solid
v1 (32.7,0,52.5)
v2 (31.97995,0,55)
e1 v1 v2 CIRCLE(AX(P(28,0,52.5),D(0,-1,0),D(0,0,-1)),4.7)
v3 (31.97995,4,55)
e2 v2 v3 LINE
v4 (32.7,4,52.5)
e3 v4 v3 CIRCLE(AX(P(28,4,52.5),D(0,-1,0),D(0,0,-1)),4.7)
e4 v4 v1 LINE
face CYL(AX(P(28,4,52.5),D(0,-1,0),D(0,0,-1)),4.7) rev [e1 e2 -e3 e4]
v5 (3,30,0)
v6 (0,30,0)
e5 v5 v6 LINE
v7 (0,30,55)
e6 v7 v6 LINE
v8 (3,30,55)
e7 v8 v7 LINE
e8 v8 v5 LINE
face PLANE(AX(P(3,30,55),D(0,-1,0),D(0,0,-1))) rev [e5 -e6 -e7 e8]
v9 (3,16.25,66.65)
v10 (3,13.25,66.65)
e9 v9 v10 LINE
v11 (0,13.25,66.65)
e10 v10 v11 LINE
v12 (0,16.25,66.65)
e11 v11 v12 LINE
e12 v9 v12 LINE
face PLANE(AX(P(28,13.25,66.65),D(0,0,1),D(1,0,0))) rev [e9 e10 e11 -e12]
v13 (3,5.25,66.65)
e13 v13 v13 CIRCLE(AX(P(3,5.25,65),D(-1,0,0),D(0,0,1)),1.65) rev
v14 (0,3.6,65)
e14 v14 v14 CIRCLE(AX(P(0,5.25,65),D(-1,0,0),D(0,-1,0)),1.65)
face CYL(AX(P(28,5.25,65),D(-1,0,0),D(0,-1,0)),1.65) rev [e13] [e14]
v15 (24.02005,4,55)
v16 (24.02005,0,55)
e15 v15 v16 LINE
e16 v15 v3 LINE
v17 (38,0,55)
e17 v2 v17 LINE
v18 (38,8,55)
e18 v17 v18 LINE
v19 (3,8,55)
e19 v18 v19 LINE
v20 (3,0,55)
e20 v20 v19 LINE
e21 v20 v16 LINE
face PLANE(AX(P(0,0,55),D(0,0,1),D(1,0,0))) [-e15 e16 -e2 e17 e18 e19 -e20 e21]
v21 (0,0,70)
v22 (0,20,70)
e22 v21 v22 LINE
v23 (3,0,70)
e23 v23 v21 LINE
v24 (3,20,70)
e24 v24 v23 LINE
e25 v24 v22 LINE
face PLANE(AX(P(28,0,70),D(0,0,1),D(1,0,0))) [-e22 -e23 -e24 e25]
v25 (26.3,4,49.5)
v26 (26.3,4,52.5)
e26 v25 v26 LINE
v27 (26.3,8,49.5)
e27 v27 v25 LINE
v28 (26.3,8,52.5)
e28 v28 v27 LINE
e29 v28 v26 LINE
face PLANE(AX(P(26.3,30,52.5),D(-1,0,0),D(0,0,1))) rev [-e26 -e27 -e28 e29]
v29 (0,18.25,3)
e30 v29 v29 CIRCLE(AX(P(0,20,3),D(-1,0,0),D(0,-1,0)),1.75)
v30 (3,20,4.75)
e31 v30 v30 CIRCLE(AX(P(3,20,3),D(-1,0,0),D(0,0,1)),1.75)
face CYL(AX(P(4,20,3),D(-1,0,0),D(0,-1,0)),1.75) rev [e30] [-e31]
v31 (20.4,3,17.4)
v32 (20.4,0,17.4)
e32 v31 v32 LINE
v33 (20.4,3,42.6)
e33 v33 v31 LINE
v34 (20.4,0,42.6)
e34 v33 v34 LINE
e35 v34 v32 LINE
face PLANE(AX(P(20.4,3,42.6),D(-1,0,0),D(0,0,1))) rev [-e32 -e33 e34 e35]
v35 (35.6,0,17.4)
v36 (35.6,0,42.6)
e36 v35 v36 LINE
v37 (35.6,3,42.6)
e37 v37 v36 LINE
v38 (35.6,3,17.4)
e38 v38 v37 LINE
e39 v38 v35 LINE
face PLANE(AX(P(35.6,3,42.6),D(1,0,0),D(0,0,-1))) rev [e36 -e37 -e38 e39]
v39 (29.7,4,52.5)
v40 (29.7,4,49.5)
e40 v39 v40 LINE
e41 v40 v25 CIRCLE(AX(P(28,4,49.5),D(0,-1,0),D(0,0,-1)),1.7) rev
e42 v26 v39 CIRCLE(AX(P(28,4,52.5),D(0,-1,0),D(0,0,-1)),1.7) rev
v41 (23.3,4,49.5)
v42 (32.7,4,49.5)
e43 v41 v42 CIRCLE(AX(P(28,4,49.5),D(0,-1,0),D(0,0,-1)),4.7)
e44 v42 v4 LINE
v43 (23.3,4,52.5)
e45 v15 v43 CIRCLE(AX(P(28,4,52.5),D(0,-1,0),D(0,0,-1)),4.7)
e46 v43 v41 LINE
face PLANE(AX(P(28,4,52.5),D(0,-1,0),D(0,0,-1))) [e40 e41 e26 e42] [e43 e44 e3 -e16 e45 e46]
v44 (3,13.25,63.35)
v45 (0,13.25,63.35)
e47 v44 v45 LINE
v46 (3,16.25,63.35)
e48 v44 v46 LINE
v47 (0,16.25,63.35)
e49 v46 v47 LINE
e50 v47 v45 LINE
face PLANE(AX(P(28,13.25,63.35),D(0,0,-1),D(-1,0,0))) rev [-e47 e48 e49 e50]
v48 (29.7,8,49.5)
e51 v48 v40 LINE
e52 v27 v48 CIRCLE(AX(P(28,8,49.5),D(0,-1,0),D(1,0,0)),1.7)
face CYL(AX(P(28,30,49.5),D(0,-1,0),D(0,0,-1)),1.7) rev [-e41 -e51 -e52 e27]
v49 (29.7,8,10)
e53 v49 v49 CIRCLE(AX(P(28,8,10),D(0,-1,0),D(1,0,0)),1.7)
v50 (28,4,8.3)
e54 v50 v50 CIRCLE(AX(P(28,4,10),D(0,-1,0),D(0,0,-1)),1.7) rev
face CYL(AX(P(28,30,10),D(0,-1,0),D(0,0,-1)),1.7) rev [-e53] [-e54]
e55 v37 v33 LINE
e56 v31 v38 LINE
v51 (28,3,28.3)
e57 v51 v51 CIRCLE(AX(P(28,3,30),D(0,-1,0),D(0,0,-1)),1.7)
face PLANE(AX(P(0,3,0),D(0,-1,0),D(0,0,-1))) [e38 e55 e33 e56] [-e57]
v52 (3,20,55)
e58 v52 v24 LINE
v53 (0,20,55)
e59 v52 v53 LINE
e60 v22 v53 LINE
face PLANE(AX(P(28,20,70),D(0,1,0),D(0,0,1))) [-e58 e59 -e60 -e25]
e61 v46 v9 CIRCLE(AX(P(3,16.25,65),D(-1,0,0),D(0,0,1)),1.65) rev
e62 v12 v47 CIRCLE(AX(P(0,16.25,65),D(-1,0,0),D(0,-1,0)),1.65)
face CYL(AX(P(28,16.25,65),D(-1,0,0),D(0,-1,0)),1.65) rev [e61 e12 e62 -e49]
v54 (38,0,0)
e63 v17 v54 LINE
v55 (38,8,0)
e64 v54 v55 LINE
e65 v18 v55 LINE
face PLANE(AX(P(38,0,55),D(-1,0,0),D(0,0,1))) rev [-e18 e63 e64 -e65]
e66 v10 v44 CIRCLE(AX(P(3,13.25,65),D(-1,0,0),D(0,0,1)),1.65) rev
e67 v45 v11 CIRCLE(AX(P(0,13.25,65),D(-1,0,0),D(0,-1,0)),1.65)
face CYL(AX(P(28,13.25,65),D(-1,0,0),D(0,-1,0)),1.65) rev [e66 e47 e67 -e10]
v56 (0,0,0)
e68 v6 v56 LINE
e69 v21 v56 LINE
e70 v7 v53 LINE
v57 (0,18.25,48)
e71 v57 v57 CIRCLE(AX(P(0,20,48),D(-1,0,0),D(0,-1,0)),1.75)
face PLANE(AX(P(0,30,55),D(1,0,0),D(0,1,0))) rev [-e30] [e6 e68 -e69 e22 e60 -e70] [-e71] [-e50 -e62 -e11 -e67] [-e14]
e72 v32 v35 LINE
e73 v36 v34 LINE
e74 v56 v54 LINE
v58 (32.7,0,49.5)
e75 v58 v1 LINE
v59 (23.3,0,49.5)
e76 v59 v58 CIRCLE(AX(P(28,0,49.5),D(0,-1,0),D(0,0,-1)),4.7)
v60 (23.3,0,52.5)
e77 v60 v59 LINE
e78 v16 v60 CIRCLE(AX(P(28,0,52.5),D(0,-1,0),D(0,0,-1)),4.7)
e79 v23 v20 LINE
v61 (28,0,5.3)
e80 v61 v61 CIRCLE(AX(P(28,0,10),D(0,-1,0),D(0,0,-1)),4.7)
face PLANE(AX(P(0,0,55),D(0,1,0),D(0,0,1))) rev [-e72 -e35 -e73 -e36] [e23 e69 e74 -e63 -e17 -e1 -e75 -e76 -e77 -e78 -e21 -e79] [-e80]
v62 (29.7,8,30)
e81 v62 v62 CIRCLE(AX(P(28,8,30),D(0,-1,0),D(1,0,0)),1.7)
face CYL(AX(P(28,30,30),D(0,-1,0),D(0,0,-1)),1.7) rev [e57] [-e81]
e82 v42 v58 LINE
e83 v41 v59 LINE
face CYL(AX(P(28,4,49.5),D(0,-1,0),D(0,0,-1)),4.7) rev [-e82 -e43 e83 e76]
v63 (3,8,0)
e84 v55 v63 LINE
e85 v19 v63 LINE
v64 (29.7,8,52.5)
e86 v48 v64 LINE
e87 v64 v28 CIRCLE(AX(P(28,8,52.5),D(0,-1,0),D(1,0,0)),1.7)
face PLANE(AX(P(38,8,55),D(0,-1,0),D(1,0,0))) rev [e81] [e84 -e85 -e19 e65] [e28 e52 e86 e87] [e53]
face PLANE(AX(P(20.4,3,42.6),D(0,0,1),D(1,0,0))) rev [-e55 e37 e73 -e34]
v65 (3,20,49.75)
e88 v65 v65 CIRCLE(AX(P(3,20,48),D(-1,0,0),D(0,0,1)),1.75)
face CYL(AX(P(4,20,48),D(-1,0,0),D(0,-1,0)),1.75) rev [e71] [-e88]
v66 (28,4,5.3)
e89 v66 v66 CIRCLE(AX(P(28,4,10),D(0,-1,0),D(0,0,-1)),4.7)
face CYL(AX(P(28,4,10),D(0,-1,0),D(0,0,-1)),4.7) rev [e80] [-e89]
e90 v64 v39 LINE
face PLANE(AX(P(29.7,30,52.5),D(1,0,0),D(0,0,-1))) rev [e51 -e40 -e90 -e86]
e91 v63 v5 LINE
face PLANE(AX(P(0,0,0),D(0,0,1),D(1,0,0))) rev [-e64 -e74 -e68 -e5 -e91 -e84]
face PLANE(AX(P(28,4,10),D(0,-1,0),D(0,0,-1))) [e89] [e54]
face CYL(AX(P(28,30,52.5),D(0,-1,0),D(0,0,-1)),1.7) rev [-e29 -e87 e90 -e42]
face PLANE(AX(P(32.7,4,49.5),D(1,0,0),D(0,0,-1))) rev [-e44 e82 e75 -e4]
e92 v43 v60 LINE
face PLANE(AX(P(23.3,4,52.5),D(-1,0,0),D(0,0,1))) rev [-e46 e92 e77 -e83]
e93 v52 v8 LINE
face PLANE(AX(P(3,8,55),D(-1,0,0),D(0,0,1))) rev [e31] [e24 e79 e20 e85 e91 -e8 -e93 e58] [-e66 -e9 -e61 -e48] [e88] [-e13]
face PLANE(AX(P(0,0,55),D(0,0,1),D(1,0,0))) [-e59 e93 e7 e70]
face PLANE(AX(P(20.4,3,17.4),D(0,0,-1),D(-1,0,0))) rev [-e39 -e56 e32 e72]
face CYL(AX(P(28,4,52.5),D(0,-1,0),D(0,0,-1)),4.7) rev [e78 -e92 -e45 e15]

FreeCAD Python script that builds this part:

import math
import FreeCAD as App
import Part
import Sketcher

doc = App.newDocument("Part")
body = doc.addObject("PartDesign::Body", "Body")

sketch1 = doc.addObject("Sketcher::SketchObject", "Sketch")
body.addObject(sketch1)
sketch1.AttachmentSupport = (doc.XY_Plane, [""])
sketch1.MapMode = "FlatFace"
sketch1.addGeometry(Part.LineSegment(App.Vector(0, 0, 0), App.Vector(38, 0, 0)), False)
sketch1.addGeometry(Part.LineSegment(App.Vector(38, 0, 0), App.Vector(38, 8, 0)), False)
sketch1.addGeometry(Part.LineSegment(App.Vector(38, 8, 0), App.Vector(3, 8, 0)), False)
sketch1.addGeometry(Part.LineSegment(App.Vector(3, 8, 0), App.Vector(3, 30, 0)), False)
sketch1.addGeometry(Part.LineSegment(App.Vector(3, 30, 0), App.Vector(0, 30, 0)), False)
sketch1.addGeometry(Part.LineSegment(App.Vector(0, 30, 0), App.Vector(0, 0, 0)), False)
sketch1.addConstraint(Sketcher.Constraint("Coincident", 0, 2, 1, 1))
sketch1.addConstraint(Sketcher.Constraint("Coincident", 1, 2, 2, 1))
sketch1.addConstraint(Sketcher.Constraint("Coincident", 2, 2, 3, 1))
sketch1.addConstraint(Sketcher.Constraint("Coincident", 3, 2, 4, 1))
sketch1.addConstraint(Sketcher.Constraint("Coincident", 4, 2, 5, 1))
sketch1.addConstraint(Sketcher.Constraint("Coincident", 5, 2, 0, 1))
sketch1.addConstraint(Sketcher.Constraint("Horizontal", 0))
sketch1.addConstraint(Sketcher.Constraint("Vertical", 1))
sketch1.addConstraint(Sketcher.Constraint("Horizontal", 2))
sketch1.addConstraint(Sketcher.Constraint("Vertical", 3))
sketch1.addConstraint(Sketcher.Constraint("Horizontal", 4))
sketch1.addConstraint(Sketcher.Constraint("Vertical", 5))
sketch1.addConstraint(Sketcher.Constraint("Coincident", 5, 2, -1, 1))
sketch1.addConstraint(Sketcher.Constraint("DistanceX", 0, 1, 0, 2, 38.0))
sketch1.addConstraint(Sketcher.Constraint("DistanceX", 2, 2, 2, 1, 35.0))
sketch1.addConstraint(Sketcher.Constraint("DistanceY", 1, 1, 1, 2, 8.0))
sketch1.addConstraint(Sketcher.Constraint("DistanceY", 3, 1, 3, 2, 22.0))
pad1 = doc.addObject("PartDesign::Pad", "Pad")
body.addObject(pad1)
pad1.Profile = sketch1
pad1.Length = 55

sketch2 = doc.addObject("Sketcher::SketchObject", "Sketch001")
body.addObject(sketch2)
sketch2.AttachmentSupport = (doc.XZ_Plane, [""])
sketch2.MapMode = "FlatFace"
sketch2.addGeometry(Part.LineSegment(App.Vector(20.4, 42.6, 0), App.Vector(20.4, 17.4, 0)), False)
sketch2.addGeometry(Part.LineSegment(App.Vector(20.4, 17.4, 0), App.Vector(35.6, 17.4, 0)), False)
sketch2.addGeometry(Part.LineSegment(App.Vector(35.6, 17.4, 0), App.Vector(35.6, 42.6, 0)), False)
sketch2.addGeometry(Part.LineSegment(App.Vector(35.6, 42.6, 0), App.Vector(20.4, 42.6, 0)), False)
sketch2.addConstraint(Sketcher.Constraint("Coincident", 0, 2, 1, 1))
sketch2.addConstraint(Sketcher.Constraint("Coincident", 1, 2, 2, 1))
sketch2.addConstraint(Sketcher.Constraint("Coincident", 2, 2, 3, 1))
sketch2.addConstraint(Sketcher.Constraint("Coincident", 3, 2, 0, 1))
sketch2.addConstraint(Sketcher.Constraint("Vertical", 0))
sketch2.addConstraint(Sketcher.Constraint("Horizontal", 1))
sketch2.addConstraint(Sketcher.Constraint("Vertical", 2))
sketch2.addConstraint(Sketcher.Constraint("Horizontal", 3))
sketch2.addConstraint(Sketcher.Constraint("DistanceX", 1, 1, 1, 2, 15.2))
sketch2.addConstraint(Sketcher.Constraint("DistanceY", 0, 2, 0, 1, 25.2))
sketch2.addConstraint(Sketcher.Constraint("DistanceX", -1, 1, 0, 2, 20.4))
sketch2.addConstraint(Sketcher.Constraint("DistanceY", -1, 1, 0, 2, 17.4))
pocket1 = doc.addObject("PartDesign::Pocket", "Pocket")
body.addObject(pocket1)
pocket1.Profile = sketch2
pocket1.Length = 3

sketch3 = doc.addObject("Sketcher::SketchObject", "Sketch002")
body.addObject(sketch3)
sketch3.AttachmentSupport = (doc.XZ_Plane, [""])
sketch3.MapMode = "FlatFace"
sketch3.addGeometry(Part.Circle(App.Vector(28, 30, 0), App.Vector(0, 0, 1), 1.7), False)
sketch3.addGeometry(Part.Circle(App.Vector(28, 10, 0), App.Vector(0, 0, 1), 1.7), False)
sketch3.addGeometry(Part.LineSegment(App.Vector(29.7, 49.5, 0), App.Vector(29.7, 52.5, 0)), False)
sketch3.addGeometry(Part.ArcOfCircle(Part.Circle(App.Vector(28, 52.5, 0), App.Vector(0, 0, 1), 1.7), math.radians(0), math.radians(180)), False)
sketch3.addGeometry(Part.LineSegment(App.Vector(26.3, 52.5, 0), App.Vector(26.3, 49.5, 0)), False)
sketch3.addGeometry(Part.ArcOfCircle(Part.Circle(App.Vector(28, 49.5, 0), App.Vector(0, 0, 1), 1.7), math.radians(180), math.radians(360)), False)
sketch3.addConstraint(Sketcher.Constraint("Tangent", 2, 2, 3, 1))
sketch3.addConstraint(Sketcher.Constraint("Tangent", 3, 2, 4, 1))
sketch3.addConstraint(Sketcher.Constraint("Tangent", 4, 2, 5, 1))
sketch3.addConstraint(Sketcher.Constraint("Tangent", 5, 2, 2, 1))
sketch3.addConstraint(Sketcher.Constraint("Vertical", 2))
sketch3.addConstraint(Sketcher.Constraint("Vertical", 4))
sketch3.addConstraint(Sketcher.Constraint("Equal", 0, 1))
sketch3.addConstraint(Sketcher.Constraint("Equal", 1, 3))
sketch3.addConstraint(Sketcher.Constraint("Vertical", 0, 3, 1, 3))
sketch3.addConstraint(Sketcher.Constraint("Vertical", 1, 3, 3, 3))
sketch3.addConstraint(Sketcher.Constraint("Diameter", 0, 3.4))
sketch3.addConstraint(Sketcher.Constraint("DistanceY", 2, 1, 2, 2, 3.0))
sketch3.addConstraint(Sketcher.Constraint("DistanceX", -1, 1, 0, 3, 28.0))
sketch3.addConstraint(Sketcher.Constraint("DistanceY", -1, 1, 0, 3, 30.0))
sketch3.addConstraint(Sketcher.Constraint("DistanceY", -1, 1, 1, 3, 10.0))
sketch3.addConstraint(Sketcher.Constraint("DistanceY", -1, 1, 3, 3, 52.5))
pocket2 = doc.addObject("PartDesign::Pocket", "Pocket001")
body.addObject(pocket2)
pocket2.Profile = sketch3
pocket2.Type = "ThroughAll"

sketch4 = doc.addObject("Sketcher::SketchObject", "Sketch003")
body.addObject(sketch4)
sketch4.AttachmentSupport = (doc.XZ_Plane, [""])
sketch4.MapMode = "FlatFace"
sketch4.addGeometry(Part.Circle(App.Vector(28, 10, 0), App.Vector(0, 0, 1), 4.7), False)
sketch4.addGeometry(Part.LineSegment(App.Vector(32.7, 49.5, 0), App.Vector(32.7, 52.5, 0)), False)
sketch4.addGeometry(Part.ArcOfCircle(Part.Circle(App.Vector(28, 52.5, 0), App.Vector(0, 0, 1), 4.7), math.radians(0), math.radians(180)), False)
sketch4.addGeometry(Part.LineSegment(App.Vector(23.3, 52.5, 0), App.Vector(23.3, 49.5, 0)), False)
sketch4.addGeometry(Part.ArcOfCircle(Part.Circle(App.Vector(28, 49.5, 0), App.Vector(0, 0, 1), 4.7), math.radians(180), math.radians(360)), False)
sketch4.addConstraint(Sketcher.Constraint("Tangent", 1, 2, 2, 1))
sketch4.addConstraint(Sketcher.Constraint("Tangent", 2, 2, 3, 1))
sketch4.addConstraint(Sketcher.Constraint("Tangent", 3, 2, 4, 1))
sketch4.addConstraint(Sketcher.Constraint("Tangent", 4, 2, 1, 1))
sketch4.addConstraint(Sketcher.Constraint("Vertical", 1))
sketch4.addConstraint(Sketcher.Constraint("Vertical", 3))
sketch4.addConstraint(Sketcher.Constraint("Equal", 0, 2))
sketch4.addConstraint(Sketcher.Constraint("Vertical", 0, 3, 2, 3))
sketch4.addConstraint(Sketcher.Constraint("Diameter", 0, 9.4))
sketch4.addConstraint(Sketcher.Constraint("DistanceY", 1, 1, 1, 2, 3.0))
sketch4.addConstraint(Sketcher.Constraint("DistanceX", -1, 1, 0, 3, 28.0))
sketch4.addConstraint(Sketcher.Constraint("DistanceY", -1, 1, 0, 3, 10.0))
sketch4.addConstraint(Sketcher.Constraint("DistanceY", -1, 1, 2, 3, 52.5))
pocket3 = doc.addObject("PartDesign::Pocket", "Pocket002")
body.addObject(pocket3)
pocket3.Profile = sketch4
pocket3.Length = 4

sketch5 = doc.addObject("Sketcher::SketchObject", "Sketch004")
body.addObject(sketch5)
sketch5.AttachmentSupport = (doc.YZ_Plane, [""])
sketch5.MapMode = "FlatFace"
sketch5.addGeometry(Part.Circle(App.Vector(20, 48, 0), App.Vector(0, 0, 1), 1.75), False)
sketch5.addGeometry(Part.Circle(App.Vector(20, 3, 0), App.Vector(0, 0, 1), 1.75), False)
sketch5.addConstraint(Sketcher.Constraint("Equal", 0, 1))
sketch5.addConstraint(Sketcher.Constraint("Vertical", 0, 3, 1, 3))
sketch5.addConstraint(Sketcher.Constraint("Diameter", 0, 3.5))
sketch5.addConstraint(Sketcher.Constraint("DistanceX", -1, 1, 0, 3, 20.0))
sketch5.addConstraint(Sketcher.Constraint("DistanceY", -1, 1, 0, 3, 48.0))
sketch5.addConstraint(Sketcher.Constraint("DistanceY", -1, 1, 1, 3, 3.0))
pocket4 = doc.addObject("PartDesign::Pocket", "Pocket003")
body.addObject(pocket4)
pocket4.Profile = sketch5
pocket4.Length = 4
pocket4.Reversed = True

sketch6 = doc.addObject("Sketcher::SketchObject", "Sketch005")
body.addObject(sketch6)
sketch6.AttachmentSupport = (doc.YZ_Plane, [""])
sketch6.MapMode = "FlatFace"
sketch6.addGeometry(Part.LineSegment(App.Vector(20, 55, 0), App.Vector(0, 55, 0)), False)
sketch6.addGeometry(Part.LineSegment(App.Vector(0, 55, 0), App.Vector(0, 70, 0)), False)
sketch6.addGeometry(Part.LineSegment(App.Vector(0, 70, 0), App.Vector(20, 70, 0)), False)
sketch6.addGeometry(Part.LineSegment(App.Vector(20, 70, 0), App.Vector(20, 55, 0)), False)
sketch6.addGeometry(Part.Circle(App.Vector(5.25, 65, 0), App.Vector(0, 0, 1), 1.65), False)
sketch6.addGeometry(Part.ArcOfCircle(Part.Circle(App.Vector(13.25, 65, 0), App.Vector(0, 0, 1), 1.65), math.radians(90), math.radians(270)), False)
sketch6.addGeometry(Part.LineSegment(App.Vector(13.25, 63.35, 0), App.Vector(16.25, 63.35, 0)), False)
sketch6.addGeometry(Part.ArcOfCircle(Part.Circle(App.Vector(16.25, 65, 0), App.Vector(0, 0, 1), 1.65), math.radians(-90), math.radians(90)), False)
sketch6.addGeometry(Part.LineSegment(App.Vector(16.25, 66.65, 0), App.Vector(13.25, 66.65, 0)), False)
sketch6.addConstraint(Sketcher.Constraint("Coincident", 0, 2, 1, 1))
sketch6.addConstraint(Sketcher.Constraint("Coincident", 1, 2, 2, 1))
sketch6.addConstraint(Sketcher.Constraint("Coincident", 2, 2, 3, 1))
sketch6.addConstraint(Sketcher.Constraint("Coincident", 3, 2, 0, 1))
sketch6.addConstraint(Sketcher.Constraint("Tangent", 5, 2, 6, 1))
sketch6.addConstraint(Sketcher.Constraint("Tangent", 6, 2, 7, 1))
sketch6.addConstraint(Sketcher.Constraint("Tangent", 7, 2, 8, 1))
sketch6.addConstraint(Sketcher.Constraint("Tangent", 8, 2, 5, 1))
sketch6.addConstraint(Sketcher.Constraint("Horizontal", 0))
sketch6.addConstraint(Sketcher.Constraint("Vertical", 1))
sketch6.addConstraint(Sketcher.Constraint("Horizontal", 2))
sketch6.addConstraint(Sketcher.Constraint("Vertical", 3))
sketch6.addConstraint(Sketcher.Constraint("Horizontal", 6))
sketch6.addConstraint(Sketcher.Constraint("Horizontal", 8))
sketch6.addConstraint(Sketcher.Constraint("Equal", 4, 5))
sketch6.addConstraint(Sketcher.Constraint("PointOnObject", 0, 2, -2))
sketch6.addConstraint(Sketcher.Constraint("Horizontal", 4, 3, 5, 3))
sketch6.addConstraint(Sketcher.Constraint("Diameter", 4, 3.3))
sketch6.addConstraint(Sketcher.Constraint("DistanceX", 0, 2, 0, 1, 20.0))
sketch6.addConstraint(Sketcher.Constraint("DistanceX", 6, 1, 6, 2, 3.0))
sketch6.addConstraint(Sketcher.Constraint("DistanceY", 1, 1, 1, 2, 15.0))
sketch6.addConstraint(Sketcher.Constraint("DistanceY", -1, 1, 4, 3, 65.0))
sketch6.addConstraint(Sketcher.Constraint("DistanceY", -1, 1, 0, 2, 55.0))
sketch6.addConstraint(Sketcher.Constraint("DistanceX", 4, 3, 5, 3, 8.0))
sketch6.addConstraint(Sketcher.Constraint("DistanceX", -1, 1, 4, 3, 5.25))
pad2 = doc.addObject("PartDesign::Pad", "Pad001")
body.addObject(pad2)
pad2.Profile = sketch6
pad2.Length = 3

doc.recompute()
